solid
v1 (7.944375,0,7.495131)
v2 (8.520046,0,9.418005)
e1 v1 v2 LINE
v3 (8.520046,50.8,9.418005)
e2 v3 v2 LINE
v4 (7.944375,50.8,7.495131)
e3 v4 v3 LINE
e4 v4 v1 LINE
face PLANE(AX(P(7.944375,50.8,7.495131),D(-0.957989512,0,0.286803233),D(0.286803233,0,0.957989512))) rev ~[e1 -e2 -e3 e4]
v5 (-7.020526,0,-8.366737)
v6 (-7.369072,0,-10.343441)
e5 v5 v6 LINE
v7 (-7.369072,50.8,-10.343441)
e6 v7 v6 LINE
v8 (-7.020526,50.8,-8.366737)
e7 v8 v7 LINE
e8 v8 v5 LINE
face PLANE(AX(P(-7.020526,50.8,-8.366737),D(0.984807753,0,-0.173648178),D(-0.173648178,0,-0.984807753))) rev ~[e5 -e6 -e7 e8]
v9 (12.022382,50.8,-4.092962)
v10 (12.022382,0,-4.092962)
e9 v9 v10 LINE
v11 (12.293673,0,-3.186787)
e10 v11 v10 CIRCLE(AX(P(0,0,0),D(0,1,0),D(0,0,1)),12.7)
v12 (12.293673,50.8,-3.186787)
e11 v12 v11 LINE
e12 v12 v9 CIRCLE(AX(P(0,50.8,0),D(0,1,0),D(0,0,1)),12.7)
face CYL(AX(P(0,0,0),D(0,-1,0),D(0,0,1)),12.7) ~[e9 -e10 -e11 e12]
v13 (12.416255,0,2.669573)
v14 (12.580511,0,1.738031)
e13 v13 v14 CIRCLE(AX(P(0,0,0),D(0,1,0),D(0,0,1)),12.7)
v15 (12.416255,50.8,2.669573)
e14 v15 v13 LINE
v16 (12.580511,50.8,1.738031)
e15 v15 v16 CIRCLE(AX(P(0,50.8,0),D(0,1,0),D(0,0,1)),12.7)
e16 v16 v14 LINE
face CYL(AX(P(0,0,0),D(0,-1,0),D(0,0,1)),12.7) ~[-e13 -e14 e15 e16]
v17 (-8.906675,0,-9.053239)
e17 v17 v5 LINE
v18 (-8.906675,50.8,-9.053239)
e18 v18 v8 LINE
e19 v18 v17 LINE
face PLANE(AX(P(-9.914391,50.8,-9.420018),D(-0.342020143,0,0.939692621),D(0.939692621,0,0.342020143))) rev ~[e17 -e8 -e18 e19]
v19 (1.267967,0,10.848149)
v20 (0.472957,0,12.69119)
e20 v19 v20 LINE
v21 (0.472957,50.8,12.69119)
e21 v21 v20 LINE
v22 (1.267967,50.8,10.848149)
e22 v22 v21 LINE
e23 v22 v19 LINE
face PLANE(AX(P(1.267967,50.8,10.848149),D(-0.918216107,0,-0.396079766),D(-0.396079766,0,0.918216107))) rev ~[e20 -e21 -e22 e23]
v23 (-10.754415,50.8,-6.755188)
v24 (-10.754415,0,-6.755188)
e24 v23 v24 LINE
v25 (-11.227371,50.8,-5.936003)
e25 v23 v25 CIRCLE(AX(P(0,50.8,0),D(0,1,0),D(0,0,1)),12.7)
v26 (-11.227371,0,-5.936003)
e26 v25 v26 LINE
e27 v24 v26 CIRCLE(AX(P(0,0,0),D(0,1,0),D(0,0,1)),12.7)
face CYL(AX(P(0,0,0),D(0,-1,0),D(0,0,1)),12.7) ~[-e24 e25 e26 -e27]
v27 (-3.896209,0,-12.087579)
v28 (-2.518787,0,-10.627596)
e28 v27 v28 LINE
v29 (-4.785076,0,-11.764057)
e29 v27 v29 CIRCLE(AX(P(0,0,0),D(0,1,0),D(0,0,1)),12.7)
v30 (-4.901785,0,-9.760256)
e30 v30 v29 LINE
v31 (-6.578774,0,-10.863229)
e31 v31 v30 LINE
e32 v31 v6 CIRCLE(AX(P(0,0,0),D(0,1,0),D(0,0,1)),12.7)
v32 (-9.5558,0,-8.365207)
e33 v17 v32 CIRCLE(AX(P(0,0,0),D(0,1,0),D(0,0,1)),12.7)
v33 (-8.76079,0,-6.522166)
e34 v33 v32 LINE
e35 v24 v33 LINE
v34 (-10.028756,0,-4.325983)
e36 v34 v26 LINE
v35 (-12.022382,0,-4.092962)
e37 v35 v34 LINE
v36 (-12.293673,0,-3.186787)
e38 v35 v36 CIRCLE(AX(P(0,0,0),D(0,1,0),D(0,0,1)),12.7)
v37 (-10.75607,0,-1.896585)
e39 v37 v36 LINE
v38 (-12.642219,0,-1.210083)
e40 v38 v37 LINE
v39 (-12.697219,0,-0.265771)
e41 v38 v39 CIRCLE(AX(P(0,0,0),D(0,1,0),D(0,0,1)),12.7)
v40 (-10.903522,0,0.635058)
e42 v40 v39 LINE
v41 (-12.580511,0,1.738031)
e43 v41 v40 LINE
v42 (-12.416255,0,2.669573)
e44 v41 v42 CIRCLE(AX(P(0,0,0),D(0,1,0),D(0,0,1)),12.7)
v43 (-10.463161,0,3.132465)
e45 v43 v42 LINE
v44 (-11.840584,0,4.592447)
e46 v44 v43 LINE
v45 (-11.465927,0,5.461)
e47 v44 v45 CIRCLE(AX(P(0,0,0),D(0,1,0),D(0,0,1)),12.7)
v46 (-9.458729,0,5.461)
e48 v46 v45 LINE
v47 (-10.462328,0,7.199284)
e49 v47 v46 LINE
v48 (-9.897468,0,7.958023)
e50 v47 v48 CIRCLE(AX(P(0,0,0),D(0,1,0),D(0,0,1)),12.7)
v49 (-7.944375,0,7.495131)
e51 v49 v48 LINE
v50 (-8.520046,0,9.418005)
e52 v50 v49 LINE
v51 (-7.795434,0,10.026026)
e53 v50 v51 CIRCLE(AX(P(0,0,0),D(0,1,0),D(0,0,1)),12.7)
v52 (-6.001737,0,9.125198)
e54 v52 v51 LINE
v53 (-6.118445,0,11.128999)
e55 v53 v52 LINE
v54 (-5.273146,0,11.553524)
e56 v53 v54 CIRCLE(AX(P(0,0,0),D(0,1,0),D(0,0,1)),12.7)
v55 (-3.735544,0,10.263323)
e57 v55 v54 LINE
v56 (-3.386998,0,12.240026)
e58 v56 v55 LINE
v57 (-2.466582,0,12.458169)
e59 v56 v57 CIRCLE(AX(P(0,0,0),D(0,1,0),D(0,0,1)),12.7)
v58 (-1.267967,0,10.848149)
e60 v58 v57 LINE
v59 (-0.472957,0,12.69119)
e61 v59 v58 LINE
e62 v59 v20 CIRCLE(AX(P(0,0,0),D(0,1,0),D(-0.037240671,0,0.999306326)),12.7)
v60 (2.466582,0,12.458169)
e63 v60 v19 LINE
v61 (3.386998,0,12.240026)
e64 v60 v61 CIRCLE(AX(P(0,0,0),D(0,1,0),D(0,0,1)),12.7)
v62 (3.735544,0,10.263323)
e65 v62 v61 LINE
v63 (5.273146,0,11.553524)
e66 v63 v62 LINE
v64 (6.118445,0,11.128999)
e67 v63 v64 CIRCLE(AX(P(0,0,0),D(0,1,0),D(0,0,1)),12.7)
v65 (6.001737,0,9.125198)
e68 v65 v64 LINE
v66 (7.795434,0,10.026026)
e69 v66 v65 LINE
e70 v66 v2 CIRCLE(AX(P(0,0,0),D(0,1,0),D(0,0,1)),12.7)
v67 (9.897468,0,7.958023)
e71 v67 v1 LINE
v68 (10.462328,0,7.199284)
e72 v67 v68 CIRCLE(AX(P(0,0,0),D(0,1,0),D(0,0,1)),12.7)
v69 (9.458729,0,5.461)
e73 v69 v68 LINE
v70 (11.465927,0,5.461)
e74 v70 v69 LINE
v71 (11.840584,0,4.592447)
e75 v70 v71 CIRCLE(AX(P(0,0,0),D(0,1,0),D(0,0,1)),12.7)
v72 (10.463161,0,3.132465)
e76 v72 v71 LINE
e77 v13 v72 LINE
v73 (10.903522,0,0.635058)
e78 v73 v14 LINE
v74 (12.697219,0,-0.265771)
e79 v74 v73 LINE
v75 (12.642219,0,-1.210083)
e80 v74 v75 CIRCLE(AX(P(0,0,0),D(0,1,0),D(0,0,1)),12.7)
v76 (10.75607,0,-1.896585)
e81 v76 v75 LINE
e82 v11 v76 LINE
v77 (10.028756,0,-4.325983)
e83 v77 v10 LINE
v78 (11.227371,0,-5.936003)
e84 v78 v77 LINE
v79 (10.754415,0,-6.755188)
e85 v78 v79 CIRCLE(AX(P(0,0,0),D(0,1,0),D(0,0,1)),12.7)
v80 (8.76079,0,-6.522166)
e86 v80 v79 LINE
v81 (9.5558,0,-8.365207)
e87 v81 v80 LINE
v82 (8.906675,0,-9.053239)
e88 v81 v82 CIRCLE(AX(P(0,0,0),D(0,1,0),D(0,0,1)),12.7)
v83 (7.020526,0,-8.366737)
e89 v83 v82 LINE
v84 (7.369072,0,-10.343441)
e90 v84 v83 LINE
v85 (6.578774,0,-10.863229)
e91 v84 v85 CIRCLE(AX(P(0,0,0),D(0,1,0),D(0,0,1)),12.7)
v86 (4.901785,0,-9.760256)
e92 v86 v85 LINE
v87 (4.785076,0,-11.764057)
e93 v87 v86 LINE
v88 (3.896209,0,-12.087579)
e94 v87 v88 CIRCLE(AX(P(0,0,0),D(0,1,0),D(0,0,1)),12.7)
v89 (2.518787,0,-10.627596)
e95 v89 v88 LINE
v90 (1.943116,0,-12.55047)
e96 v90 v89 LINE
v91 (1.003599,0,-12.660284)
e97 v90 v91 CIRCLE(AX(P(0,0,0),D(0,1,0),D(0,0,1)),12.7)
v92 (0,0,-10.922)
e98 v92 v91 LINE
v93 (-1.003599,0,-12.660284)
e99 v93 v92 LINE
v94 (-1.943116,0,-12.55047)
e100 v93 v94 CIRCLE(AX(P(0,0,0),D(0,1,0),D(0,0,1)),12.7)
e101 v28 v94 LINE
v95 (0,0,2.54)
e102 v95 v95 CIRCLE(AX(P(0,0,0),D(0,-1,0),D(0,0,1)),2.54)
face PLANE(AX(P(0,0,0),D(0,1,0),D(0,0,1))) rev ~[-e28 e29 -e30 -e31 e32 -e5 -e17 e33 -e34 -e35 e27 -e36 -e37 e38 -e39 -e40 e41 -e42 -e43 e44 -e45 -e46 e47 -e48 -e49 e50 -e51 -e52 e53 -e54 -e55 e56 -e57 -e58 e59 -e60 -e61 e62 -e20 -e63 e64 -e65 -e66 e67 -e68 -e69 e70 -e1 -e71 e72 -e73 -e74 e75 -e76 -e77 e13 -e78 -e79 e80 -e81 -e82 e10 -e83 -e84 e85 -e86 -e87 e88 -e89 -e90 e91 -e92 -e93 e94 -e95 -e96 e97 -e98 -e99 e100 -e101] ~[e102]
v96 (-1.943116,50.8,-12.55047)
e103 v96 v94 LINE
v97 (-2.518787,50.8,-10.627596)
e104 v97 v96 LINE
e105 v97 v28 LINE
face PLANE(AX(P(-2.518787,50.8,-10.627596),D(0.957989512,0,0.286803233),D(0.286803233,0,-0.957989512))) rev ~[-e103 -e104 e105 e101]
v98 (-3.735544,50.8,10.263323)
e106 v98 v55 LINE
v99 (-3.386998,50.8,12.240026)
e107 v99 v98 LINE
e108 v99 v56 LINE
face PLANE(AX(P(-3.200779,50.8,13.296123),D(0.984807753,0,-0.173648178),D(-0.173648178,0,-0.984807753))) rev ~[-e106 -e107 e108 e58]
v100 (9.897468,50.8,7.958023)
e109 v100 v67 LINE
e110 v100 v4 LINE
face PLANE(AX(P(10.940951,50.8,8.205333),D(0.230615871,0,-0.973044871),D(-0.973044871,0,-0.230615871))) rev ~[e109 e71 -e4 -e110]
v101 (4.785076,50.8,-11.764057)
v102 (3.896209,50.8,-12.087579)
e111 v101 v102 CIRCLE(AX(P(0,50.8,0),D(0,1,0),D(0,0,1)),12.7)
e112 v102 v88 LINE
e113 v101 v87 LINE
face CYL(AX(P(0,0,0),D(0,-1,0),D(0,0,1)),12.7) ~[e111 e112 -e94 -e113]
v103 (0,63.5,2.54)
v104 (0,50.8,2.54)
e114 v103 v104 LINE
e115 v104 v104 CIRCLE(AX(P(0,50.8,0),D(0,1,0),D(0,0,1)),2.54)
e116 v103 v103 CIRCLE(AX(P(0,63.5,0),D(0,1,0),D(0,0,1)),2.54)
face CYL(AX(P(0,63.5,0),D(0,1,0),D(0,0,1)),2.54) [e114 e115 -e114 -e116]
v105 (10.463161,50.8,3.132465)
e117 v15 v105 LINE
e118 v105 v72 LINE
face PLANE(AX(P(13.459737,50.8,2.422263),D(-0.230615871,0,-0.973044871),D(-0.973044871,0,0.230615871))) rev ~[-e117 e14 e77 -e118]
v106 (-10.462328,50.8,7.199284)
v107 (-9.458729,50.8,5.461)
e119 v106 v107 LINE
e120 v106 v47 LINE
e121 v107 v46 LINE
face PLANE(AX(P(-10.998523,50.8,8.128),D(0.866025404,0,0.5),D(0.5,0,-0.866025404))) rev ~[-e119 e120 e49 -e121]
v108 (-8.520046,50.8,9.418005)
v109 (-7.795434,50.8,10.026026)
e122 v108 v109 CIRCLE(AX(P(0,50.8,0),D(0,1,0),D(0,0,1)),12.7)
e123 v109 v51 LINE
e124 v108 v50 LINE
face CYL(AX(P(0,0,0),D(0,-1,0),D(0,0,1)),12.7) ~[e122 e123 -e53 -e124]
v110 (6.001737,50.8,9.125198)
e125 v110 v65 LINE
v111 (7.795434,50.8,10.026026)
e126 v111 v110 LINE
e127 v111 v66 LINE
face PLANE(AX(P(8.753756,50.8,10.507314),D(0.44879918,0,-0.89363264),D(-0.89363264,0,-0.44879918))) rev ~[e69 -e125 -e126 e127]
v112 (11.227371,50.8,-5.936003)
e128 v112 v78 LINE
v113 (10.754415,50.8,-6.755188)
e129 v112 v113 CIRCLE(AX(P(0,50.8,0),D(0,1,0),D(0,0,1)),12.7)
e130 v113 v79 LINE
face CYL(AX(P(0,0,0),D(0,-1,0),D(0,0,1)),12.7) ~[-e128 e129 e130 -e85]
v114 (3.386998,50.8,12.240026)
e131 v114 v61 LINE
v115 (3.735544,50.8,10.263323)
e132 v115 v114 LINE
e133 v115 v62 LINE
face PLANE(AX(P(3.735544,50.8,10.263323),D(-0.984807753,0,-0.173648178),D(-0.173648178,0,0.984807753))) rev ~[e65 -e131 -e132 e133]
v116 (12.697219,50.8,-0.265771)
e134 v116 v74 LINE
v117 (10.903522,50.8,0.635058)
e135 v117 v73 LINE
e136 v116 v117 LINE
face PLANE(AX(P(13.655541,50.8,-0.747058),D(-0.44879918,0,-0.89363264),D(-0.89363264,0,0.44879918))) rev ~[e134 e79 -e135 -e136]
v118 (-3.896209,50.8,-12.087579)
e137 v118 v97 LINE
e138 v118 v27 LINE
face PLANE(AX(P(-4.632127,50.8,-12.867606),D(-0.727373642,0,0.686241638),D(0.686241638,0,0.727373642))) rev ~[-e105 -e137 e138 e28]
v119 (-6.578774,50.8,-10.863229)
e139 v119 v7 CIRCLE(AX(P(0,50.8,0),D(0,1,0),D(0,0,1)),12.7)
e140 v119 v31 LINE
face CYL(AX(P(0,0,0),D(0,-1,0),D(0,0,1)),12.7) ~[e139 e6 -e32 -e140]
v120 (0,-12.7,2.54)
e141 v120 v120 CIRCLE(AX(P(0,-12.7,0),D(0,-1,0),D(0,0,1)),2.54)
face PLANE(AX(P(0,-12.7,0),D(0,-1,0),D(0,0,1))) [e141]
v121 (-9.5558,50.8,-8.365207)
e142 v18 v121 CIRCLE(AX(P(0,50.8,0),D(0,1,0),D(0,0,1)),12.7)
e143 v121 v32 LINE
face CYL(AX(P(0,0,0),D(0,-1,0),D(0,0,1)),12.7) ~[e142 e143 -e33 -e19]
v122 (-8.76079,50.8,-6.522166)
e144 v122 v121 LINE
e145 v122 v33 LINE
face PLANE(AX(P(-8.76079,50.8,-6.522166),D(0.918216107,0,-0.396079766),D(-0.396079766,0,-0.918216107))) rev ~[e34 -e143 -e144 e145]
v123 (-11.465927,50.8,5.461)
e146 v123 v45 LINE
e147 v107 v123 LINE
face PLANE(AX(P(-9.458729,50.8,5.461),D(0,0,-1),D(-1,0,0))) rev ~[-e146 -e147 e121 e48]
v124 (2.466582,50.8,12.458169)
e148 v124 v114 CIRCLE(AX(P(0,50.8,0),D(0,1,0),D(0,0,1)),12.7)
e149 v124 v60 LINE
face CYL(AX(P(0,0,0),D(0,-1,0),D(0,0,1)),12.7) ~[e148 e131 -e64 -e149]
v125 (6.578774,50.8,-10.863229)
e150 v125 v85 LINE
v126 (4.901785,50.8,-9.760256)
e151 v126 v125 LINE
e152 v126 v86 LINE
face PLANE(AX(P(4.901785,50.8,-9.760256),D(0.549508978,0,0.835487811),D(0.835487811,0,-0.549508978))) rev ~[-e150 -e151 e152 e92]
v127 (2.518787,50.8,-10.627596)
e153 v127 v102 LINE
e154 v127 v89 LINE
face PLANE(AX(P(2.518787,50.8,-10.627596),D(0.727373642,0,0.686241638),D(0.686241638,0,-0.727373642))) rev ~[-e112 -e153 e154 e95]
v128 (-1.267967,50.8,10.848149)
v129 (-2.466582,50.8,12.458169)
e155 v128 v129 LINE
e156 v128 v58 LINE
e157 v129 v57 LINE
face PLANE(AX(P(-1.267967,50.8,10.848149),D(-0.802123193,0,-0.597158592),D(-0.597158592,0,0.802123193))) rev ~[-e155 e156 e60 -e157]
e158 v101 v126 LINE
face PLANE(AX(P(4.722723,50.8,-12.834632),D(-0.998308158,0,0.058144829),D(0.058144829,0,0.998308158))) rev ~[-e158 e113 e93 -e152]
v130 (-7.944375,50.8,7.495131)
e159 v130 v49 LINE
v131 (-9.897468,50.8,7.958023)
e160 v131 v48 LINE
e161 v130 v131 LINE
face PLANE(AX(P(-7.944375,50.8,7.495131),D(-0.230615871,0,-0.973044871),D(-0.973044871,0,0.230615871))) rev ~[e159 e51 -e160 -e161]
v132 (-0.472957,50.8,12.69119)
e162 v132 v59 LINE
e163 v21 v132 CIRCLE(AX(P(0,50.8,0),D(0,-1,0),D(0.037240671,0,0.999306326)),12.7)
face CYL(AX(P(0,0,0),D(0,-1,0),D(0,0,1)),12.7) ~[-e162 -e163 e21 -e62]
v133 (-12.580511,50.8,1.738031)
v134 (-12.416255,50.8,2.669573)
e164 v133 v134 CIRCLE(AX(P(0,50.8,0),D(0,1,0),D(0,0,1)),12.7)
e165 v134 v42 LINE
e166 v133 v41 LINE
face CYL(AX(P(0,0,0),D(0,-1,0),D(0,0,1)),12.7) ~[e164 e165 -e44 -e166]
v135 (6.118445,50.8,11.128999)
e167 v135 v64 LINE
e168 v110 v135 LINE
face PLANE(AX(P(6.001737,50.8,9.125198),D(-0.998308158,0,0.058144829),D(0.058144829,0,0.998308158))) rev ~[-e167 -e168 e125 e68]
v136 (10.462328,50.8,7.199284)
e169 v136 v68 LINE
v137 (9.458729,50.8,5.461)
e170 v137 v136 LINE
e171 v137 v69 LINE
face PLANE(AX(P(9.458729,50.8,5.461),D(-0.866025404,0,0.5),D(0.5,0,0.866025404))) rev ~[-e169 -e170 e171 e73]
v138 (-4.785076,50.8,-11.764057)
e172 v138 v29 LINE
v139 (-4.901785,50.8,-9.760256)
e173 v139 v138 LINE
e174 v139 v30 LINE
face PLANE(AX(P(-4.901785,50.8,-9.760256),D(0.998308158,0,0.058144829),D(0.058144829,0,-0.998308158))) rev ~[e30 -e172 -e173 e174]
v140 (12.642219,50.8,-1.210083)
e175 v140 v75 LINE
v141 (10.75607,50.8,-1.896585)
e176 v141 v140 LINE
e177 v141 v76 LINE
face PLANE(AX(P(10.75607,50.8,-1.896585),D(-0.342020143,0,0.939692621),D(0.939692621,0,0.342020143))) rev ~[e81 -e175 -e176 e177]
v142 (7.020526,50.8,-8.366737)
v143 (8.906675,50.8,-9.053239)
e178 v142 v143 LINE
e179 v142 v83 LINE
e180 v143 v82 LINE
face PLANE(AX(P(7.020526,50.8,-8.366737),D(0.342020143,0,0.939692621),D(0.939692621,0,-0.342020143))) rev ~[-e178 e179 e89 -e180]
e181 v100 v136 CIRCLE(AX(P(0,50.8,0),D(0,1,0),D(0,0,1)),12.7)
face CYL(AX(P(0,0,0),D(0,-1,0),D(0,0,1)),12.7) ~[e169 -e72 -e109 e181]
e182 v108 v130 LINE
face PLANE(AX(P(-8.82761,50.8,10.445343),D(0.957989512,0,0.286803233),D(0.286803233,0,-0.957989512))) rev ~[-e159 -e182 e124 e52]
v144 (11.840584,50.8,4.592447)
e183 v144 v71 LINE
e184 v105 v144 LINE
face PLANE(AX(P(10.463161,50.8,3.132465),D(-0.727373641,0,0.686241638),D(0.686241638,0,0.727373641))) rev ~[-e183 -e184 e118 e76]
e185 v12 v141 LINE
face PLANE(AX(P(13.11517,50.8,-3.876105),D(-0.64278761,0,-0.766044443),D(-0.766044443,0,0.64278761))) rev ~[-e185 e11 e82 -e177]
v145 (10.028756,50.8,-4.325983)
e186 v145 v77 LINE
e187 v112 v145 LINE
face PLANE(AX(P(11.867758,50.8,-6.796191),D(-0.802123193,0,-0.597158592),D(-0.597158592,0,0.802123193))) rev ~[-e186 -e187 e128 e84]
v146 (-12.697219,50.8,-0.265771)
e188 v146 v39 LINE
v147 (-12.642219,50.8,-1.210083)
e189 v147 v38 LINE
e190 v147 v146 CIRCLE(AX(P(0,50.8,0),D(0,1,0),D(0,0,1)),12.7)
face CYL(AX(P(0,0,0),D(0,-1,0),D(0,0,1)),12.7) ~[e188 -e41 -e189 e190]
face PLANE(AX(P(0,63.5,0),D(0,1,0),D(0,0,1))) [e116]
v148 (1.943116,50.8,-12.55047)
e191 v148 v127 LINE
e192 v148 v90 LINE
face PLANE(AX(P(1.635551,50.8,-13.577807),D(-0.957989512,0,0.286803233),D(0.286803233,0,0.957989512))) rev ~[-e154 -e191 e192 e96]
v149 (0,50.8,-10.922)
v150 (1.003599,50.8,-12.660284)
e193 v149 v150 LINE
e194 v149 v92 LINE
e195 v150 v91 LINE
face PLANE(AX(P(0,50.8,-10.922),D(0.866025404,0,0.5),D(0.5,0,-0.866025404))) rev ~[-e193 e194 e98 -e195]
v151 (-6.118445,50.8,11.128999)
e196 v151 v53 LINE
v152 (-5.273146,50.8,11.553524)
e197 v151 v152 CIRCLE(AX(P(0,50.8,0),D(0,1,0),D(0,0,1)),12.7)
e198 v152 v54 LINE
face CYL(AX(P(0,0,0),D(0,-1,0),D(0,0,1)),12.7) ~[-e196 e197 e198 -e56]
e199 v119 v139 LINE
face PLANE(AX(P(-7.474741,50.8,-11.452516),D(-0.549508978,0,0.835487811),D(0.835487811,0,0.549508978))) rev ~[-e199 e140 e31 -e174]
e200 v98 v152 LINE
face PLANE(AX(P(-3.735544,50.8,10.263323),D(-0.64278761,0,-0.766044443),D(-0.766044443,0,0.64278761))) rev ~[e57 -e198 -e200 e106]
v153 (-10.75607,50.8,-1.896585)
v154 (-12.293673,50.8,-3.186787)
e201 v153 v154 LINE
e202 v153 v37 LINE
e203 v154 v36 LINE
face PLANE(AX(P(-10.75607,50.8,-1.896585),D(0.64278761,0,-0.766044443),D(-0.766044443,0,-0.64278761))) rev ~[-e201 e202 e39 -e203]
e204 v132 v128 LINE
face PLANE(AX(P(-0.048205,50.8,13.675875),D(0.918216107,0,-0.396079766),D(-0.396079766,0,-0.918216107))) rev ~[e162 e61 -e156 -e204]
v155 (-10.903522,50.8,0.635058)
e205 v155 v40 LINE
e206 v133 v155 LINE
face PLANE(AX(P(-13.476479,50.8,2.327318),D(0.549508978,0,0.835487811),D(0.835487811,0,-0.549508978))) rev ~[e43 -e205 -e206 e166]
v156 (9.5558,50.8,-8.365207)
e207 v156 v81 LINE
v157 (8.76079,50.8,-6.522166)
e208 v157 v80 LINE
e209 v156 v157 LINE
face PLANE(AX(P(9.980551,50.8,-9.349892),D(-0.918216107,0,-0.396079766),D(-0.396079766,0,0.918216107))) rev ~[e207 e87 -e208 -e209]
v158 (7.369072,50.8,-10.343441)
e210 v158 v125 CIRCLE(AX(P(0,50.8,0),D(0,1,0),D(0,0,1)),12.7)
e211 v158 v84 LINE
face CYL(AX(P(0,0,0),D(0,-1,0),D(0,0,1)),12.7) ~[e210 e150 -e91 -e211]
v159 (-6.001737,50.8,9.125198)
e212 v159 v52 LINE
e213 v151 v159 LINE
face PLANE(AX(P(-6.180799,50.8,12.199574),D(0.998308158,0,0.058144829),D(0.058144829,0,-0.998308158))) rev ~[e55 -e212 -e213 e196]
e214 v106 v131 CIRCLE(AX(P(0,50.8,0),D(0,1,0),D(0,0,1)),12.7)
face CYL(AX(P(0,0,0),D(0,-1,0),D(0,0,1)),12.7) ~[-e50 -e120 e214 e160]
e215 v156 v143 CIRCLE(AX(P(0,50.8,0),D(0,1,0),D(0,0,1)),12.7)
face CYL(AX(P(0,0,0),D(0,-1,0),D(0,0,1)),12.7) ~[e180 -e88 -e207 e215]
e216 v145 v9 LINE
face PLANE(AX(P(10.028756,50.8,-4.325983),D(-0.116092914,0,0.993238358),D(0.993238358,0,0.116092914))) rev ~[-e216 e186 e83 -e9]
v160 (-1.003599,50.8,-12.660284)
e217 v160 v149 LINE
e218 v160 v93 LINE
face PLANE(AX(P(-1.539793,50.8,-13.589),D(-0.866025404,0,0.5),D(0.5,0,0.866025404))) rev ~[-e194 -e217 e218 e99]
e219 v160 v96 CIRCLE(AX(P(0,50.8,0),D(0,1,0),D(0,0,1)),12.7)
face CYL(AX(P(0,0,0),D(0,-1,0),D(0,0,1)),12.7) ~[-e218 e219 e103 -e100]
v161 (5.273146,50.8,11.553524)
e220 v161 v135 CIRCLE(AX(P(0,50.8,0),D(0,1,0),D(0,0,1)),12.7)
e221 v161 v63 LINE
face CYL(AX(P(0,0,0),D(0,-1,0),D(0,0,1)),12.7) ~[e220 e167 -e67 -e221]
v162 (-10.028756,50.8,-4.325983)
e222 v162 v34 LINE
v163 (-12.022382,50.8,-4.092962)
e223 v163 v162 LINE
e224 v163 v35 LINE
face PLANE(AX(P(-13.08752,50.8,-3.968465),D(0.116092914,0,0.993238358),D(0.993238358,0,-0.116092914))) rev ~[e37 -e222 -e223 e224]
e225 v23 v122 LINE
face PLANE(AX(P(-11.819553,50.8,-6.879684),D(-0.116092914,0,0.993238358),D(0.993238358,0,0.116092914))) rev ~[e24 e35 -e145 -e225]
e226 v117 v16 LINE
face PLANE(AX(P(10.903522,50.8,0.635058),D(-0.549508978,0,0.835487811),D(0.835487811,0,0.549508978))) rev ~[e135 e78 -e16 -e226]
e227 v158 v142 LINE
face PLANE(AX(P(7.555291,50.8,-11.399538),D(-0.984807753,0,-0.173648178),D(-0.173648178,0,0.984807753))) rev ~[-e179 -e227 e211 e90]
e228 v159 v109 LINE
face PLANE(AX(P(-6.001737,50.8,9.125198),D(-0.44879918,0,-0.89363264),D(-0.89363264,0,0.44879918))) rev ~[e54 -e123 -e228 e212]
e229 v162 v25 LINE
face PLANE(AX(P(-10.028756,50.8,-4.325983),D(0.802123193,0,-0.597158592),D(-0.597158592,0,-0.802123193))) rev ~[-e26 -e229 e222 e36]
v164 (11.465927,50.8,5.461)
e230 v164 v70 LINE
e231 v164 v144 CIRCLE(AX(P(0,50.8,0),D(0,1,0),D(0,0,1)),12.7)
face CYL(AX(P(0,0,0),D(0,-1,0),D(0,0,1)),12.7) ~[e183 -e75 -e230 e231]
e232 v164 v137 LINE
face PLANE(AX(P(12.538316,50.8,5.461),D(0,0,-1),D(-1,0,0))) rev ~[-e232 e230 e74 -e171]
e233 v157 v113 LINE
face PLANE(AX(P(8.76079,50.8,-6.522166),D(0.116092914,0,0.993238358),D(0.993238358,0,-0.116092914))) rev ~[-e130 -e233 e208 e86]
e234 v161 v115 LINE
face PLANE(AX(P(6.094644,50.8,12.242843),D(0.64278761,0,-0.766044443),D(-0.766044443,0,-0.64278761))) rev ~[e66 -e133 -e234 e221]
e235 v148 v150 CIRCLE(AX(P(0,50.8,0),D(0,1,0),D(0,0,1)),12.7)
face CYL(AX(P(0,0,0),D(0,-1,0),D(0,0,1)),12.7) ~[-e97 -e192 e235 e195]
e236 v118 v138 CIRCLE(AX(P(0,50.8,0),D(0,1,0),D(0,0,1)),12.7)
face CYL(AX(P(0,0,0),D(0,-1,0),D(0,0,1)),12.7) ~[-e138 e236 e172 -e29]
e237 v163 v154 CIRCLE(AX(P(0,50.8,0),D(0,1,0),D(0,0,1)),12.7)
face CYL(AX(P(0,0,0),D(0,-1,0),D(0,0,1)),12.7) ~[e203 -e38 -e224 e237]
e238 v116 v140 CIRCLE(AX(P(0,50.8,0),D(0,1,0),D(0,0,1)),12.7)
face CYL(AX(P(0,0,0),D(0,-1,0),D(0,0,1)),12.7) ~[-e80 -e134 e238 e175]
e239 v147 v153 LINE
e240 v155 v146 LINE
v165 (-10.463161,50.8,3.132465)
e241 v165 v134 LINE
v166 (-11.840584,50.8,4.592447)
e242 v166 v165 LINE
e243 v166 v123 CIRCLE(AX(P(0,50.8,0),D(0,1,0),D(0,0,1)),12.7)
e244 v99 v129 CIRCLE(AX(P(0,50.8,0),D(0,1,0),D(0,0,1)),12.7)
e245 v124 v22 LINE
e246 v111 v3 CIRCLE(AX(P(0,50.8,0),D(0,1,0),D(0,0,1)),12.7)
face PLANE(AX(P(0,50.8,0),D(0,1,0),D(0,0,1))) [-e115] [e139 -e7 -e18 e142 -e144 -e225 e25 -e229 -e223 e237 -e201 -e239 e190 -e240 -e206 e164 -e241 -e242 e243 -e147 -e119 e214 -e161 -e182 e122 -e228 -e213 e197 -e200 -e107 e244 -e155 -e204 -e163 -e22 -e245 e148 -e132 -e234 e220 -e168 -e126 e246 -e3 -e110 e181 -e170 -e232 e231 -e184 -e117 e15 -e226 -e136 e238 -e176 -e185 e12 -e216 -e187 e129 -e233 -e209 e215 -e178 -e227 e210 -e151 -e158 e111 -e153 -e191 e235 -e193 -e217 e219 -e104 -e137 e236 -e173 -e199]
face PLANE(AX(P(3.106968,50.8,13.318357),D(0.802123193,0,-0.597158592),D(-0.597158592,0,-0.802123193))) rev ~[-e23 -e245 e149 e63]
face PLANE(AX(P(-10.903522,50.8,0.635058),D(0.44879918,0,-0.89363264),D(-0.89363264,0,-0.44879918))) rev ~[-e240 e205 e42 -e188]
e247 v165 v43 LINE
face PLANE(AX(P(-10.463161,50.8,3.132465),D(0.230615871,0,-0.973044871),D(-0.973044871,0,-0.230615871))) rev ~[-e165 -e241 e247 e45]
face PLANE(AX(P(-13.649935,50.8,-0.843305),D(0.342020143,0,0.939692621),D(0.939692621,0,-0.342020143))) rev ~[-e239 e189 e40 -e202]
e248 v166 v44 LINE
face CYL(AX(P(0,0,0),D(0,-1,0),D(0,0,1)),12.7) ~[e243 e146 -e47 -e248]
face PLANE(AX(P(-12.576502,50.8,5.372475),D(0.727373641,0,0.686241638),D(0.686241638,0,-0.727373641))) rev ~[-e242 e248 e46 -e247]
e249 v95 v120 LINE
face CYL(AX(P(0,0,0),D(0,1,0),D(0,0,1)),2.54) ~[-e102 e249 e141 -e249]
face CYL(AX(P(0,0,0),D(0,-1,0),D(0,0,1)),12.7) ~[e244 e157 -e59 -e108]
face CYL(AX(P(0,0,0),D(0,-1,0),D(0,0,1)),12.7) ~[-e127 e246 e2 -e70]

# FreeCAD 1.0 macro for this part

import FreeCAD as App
import Part
import Sketcher
from FreeCAD import Vector
Q = App.Units.Quantity

doc = App.newDocument("Part")
body = doc.addObject("PartDesign::Body", "Body")

# Sketch on XZ plane
sketch1 = body.newObject("Sketcher::SketchObject", "Sketch")
sketch1.AttachmentSupport = (doc.getObject("XZ_Plane"), [""])
sketch1.MapMode = "FlatFace"
sketch1.addGeometry(Part.Circle(Vector(0, 0, 0), Vector(0, 0, 1), 13), False)
sketch1.addConstraint(Sketcher.Constraint("Coincident", 0, 3, -1, 1))
sketch1.addConstraint(Sketcher.Constraint("Diameter", 0, Q("1 in")))
pad1 = body.newObject("PartDesign::Pad", "Pad")
pad1.Profile = sketch1
pad1.Length = Q("2 in")
pad1.Reversed = True

# Sketch on XZ plane
sketch2 = body.newObject("Sketcher::SketchObject", "Sketch001")
sketch2.AttachmentSupport = (doc.getObject("XZ_Plane"), [""])
sketch2.MapMode = "FlatFace"
sketch2.AttachmentOffset = App.Placement(Vector(0, 0, -2 * 25.4), App.Rotation())
sketch2.addGeometry(Part.LineSegment(Vector(2.518787, -10.627596, 0), Vector(4.632127, -12.867606, 0)), False)
sketch2.addGeometry(Part.LineSegment(Vector(4.632127, -12.867606, 0), Vector(1.635551, -13.577807, 0)), False)
sketch2.addGeometry(Part.LineSegment(Vector(1.635551, -13.577807, 0), Vector(2.518787, -10.627596, 0)), False)
sketch2.addGeometry(Part.LineSegment(Vector(0, -10.922, 0), Vector(1.539793, -13.589, 0)), False)
sketch2.addGeometry(Part.LineSegment(Vector(1.539793, -13.589, 0), Vector(-1.539793, -13.589, 0)), False)
sketch2.addGeometry(Part.LineSegment(Vector(-1.539793, -13.589, 0), Vector(0, -10.922, 0)), False)
sketch2.addGeometry(Part.LineSegment(Vector(4.901785, -9.760256, 0), Vector(7.474741, -11.452516, 0)), False)
sketch2.addGeometry(Part.LineSegment(Vector(7.474741, -11.452516, 0), Vector(4.722723, -12.834632, 0)), False)
sketch2.addGeometry(Part.LineSegment(Vector(4.722723, -12.834632, 0), Vector(4.901785, -9.760256, 0)), False)
sketch2.addGeometry(Part.LineSegment(Vector(7.020526, -8.366737, 0), Vector(9.914391, -9.420018, 0)), False)
sketch2.addGeometry(Part.LineSegment(Vector(9.914391, -9.420018, 0), Vector(7.555291, -11.399538, 0)), False)
sketch2.addGeometry(Part.LineSegment(Vector(7.555291, -11.399538, 0), Vector(7.020526, -8.366737, 0)), False)
sketch2.addGeometry(Part.LineSegment(Vector(8.76079, -6.522166, 0), Vector(11.819553, -6.879684, 0)), False)
sketch2.addGeometry(Part.LineSegment(Vector(11.819553, -6.879684, 0), Vector(9.980551, -9.349892, 0)), False)
sketch2.addGeometry(Part.LineSegment(Vector(9.980551, -9.349892, 0), Vector(8.76079, -6.522166, 0)), False)
sketch2.addGeometry(Part.LineSegment(Vector(10.028756, -4.325983, 0), Vector(13.08752, -3.968465, 0)), False)
sketch2.addGeometry(Part.LineSegment(Vector(13.08752, -3.968465, 0), Vector(11.867758, -6.796191, 0)), False)
sketch2.addGeometry(Part.LineSegment(Vector(11.867758, -6.796191, 0), Vector(10.028756, -4.325983, 0)), False)
sketch2.addGeometry(Part.LineSegment(Vector(10.75607, -1.896585, 0), Vector(13.649935, -0.843305, 0)), False)
sketch2.addGeometry(Part.LineSegment(Vector(13.649935, -0.843305, 0), Vector(13.11517, -3.876105, 0)), False)
sketch2.addGeometry(Part.LineSegment(Vector(13.11517, -3.876105, 0), Vector(10.75607, -1.896585, 0)), False)
sketch2.addGeometry(Part.LineSegment(Vector(10.903522, 0.635058, 0), Vector(13.476479, 2.327318, 0)), False)
sketch2.addGeometry(Part.LineSegment(Vector(13.476479, 2.327318, 0), Vector(13.655541, -0.747058, 0)), False)
sketch2.addGeometry(Part.LineSegment(Vector(13.655541, -0.747058, 0), Vector(10.903522, 0.635058, 0)), False)
sketch2.addGeometry(Part.LineSegment(Vector(10.463161, 3.132465, 0), Vector(12.576502, 5.372475, 0)), False)
sketch2.addGeometry(Part.LineSegment(Vector(12.576502, 5.372475, 0), Vector(13.459737, 2.422263, 0)), False)
sketch2.addGeometry(Part.LineSegment(Vector(13.459737, 2.422263, 0), Vector(10.463161, 3.132465, 0)), False)
sketch2.addGeometry(Part.LineSegment(Vector(9.458729, 5.461, 0), Vector(10.998523, 8.128, 0)), False)
sketch2.addGeometry(Part.LineSegment(Vector(10.998523, 8.128, 0), Vector(12.538316, 5.461, 0)), False)
sketch2.addGeometry(Part.LineSegment(Vector(12.538316, 5.461, 0), Vector(9.458729, 5.461, 0)), False)
sketch2.addGeometry(Part.LineSegment(Vector(7.944375, 7.495131, 0), Vector(8.82761, 10.445343, 0)), False)
sketch2.addGeometry(Part.LineSegment(Vector(8.82761, 10.445343, 0), Vector(10.940951, 8.205333, 0)), False)
sketch2.addGeometry(Part.LineSegment(Vector(10.940951, 8.205333, 0), Vector(7.944375, 7.495131, 0)), False)
sketch2.addGeometry(Part.LineSegment(Vector(6.001737, 9.125198, 0), Vector(6.180799, 12.199574, 0)), False)
sketch2.addGeometry(Part.LineSegment(Vector(6.180799, 12.199574, 0), Vector(8.753756, 10.507314, 0)), False)
sketch2.addGeometry(Part.LineSegment(Vector(8.753756, 10.507314, 0), Vector(6.001737, 9.125198, 0)), False)
sketch2.addGeometry(Part.LineSegment(Vector(3.735544, 10.263323, 0), Vector(3.200779, 13.296123, 0)), False)
sketch2.addGeometry(Part.LineSegment(Vector(3.200779, 13.296123, 0), Vector(6.094644, 12.242843, 0)), False)
sketch2.addGeometry(Part.LineSegment(Vector(6.094644, 12.242843, 0), Vector(3.735544, 10.263323, 0)), False)
sketch2.addGeometry(Part.LineSegment(Vector(1.267967, 10.848149, 0), Vector(0.048205, 13.675875, 0)), False)
sketch2.addGeometry(Part.LineSegment(Vector(0.048205, 13.675875, 0), Vector(3.106968, 13.318357, 0)), False)
sketch2.addGeometry(Part.LineSegment(Vector(3.106968, 13.318357, 0), Vector(1.267967, 10.848149, 0)), False)
sketch2.addGeometry(Part.LineSegment(Vector(-1.267967, 10.848149, 0), Vector(-3.106968, 13.318357, 0)), False)
sketch2.addGeometry(Part.LineSegment(Vector(-3.106968, 13.318357, 0), Vector(-0.048205, 13.675875, 0)), False)
sketch2.addGeometry(Part.LineSegment(Vector(-0.048205, 13.675875, 0), Vector(-1.267967, 10.848149, 0)), False)
sketch2.addGeometry(Part.LineSegment(Vector(-3.735544, 10.263323, 0), Vector(-6.094644, 12.242843, 0)), False)
sketch2.addGeometry(Part.LineSegment(Vector(-6.094644, 12.242843, 0), Vector(-3.200779, 13.296123, 0)), False)
sketch2.addGeometry(Part.LineSegment(Vector(-3.200779, 13.296123, 0), Vector(-3.735544, 10.263323, 0)), False)
sketch2.addGeometry(Part.LineSegment(Vector(-6.001737, 9.125198, 0), Vector(-8.753756, 10.507314, 0)), False)
sketch2.addGeometry(Part.LineSegment(Vector(-8.753756, 10.507314, 0), Vector(-6.180799, 12.199574, 0)), False)
sketch2.addGeometry(Part.LineSegment(Vector(-6.180799, 12.199574, 0), Vector(-6.001737, 9.125198, 0)), False)
sketch2.addGeometry(Part.LineSegment(Vector(-7.944375, 7.495131, 0), Vector(-10.940951, 8.205333, 0)), False)
sketch2.addGeometry(Part.LineSegment(Vector(-10.940951, 8.205333, 0), Vector(-8.82761, 10.445343, 0)), False)
sketch2.addGeometry(Part.LineSegment(Vector(-8.82761, 10.445343, 0), Vector(-7.944375, 7.495131, 0)), False)
sketch2.addGeometry(Part.LineSegment(Vector(-9.458729, 5.461, 0), Vector(-12.538316, 5.461, 0)), False)
sketch2.addGeometry(Part.LineSegment(Vector(-12.538316, 5.461, 0), Vector(-10.998523, 8.128, 0)), False)
sketch2.addGeometry(Part.LineSegment(Vector(-10.998523, 8.128, 0), Vector(-9.458729, 5.461, 0)), False)
sketch2.addGeometry(Part.LineSegment(Vector(-10.463161, 3.132465, 0), Vector(-13.459737, 2.422263, 0)), False)
sketch2.addGeometry(Part.LineSegment(Vector(-13.459737, 2.422263, 0), Vector(-12.576502, 5.372475, 0)), False)
sketch2.addGeometry(Part.LineSegment(Vector(-12.576502, 5.372475, 0), Vector(-10.463161, 3.132465, 0)), False)
sketch2.addGeometry(Part.LineSegment(Vector(-10.903522, 0.635058, 0), Vector(-13.655541, -0.747058, 0)), False)
sketch2.addGeometry(Part.LineSegment(Vector(-13.655541, -0.747058, 0), Vector(-13.476479, 2.327318, 0)), False)
sketch2.addGeometry(Part.LineSegment(Vector(-13.476479, 2.327318, 0), Vector(-10.903522, 0.635058, 0)), False)
sketch2.addGeometry(Part.LineSegment(Vector(-10.75607, -1.896585, 0), Vector(-13.11517, -3.876105, 0)), False)
sketch2.addGeometry(Part.LineSegment(Vector(-13.11517, -3.876105, 0), Vector(-13.649935, -0.843305, 0)), False)
sketch2.addGeometry(Part.LineSegment(Vector(-13.649935, -0.843305, 0), Vector(-10.75607, -1.896585, 0)), False)
sketch2.addGeometry(Part.LineSegment(Vector(-10.028756, -4.325983, 0), Vector(-11.867758, -6.796191, 0)), False)
sketch2.addGeometry(Part.LineSegment(Vector(-11.867758, -6.796191, 0), Vector(-13.08752, -3.968465, 0)), False)
sketch2.addGeometry(Part.LineSegment(Vector(-13.08752, -3.968465, 0), Vector(-10.028756, -4.325983, 0)), False)
sketch2.addGeometry(Part.LineSegment(Vector(-8.76079, -6.522166, 0), Vector(-9.980551, -9.349892, 0)), False)
sketch2.addGeometry(Part.LineSegment(Vector(-9.980551, -9.349892, 0), Vector(-11.819553, -6.879684, 0)), False)
sketch2.addGeometry(Part.LineSegment(Vector(-11.819553, -6.879684, 0), Vector(-8.76079, -6.522166, 0)), False)
sketch2.addGeometry(Part.LineSegment(Vector(-7.020526, -8.366737, 0), Vector(-7.555291, -11.399538, 0)), False)
sketch2.addGeometry(Part.LineSegment(Vector(-7.555291, -11.399538, 0), Vector(-9.914391, -9.420018, 0)), False)
sketch2.addGeometry(Part.LineSegment(Vector(-9.914391, -9.420018, 0), Vector(-7.020526, -8.366737, 0)), False)
sketch2.addGeometry(Part.LineSegment(Vector(-4.901785, -9.760256, 0), Vector(-4.722723, -12.834632, 0)), False)
sketch2.addGeometry(Part.LineSegment(Vector(-4.722723, -12.834632, 0), Vector(-7.474741, -11.452516, 0)), False)
sketch2.addGeometry(Part.LineSegment(Vector(-7.474741, -11.452516, 0), Vector(-4.901785, -9.760256, 0)), False)
sketch2.addGeometry(Part.LineSegment(Vector(-2.518787, -10.627596, 0), Vector(-1.635551, -13.577807, 0)), False)
sketch2.addGeometry(Part.LineSegment(Vector(-1.635551, -13.577807, 0), Vector(-4.632127, -12.867606, 0)), False)
sketch2.addGeometry(Part.LineSegment(Vector(-4.632127, -12.867606, 0), Vector(-2.518787, -10.627596, 0)), False)
sketch2.addConstraint(Sketcher.Constraint("Coincident", 0, 2, 1, 1))
sketch2.addConstraint(Sketcher.Constraint("Coincident", 1, 2, 2, 1))
sketch2.addConstraint(Sketcher.Constraint("Coincident", 2, 2, 0, 1))
sketch2.addConstraint(Sketcher.Constraint("Coincident", 3, 2, 4, 1))
sketch2.addConstraint(Sketcher.Constraint("Coincident", 4, 2, 5, 1))
sketch2.addConstraint(Sketcher.Constraint("Coincident", 5, 2, 3, 1))
sketch2.addConstraint(Sketcher.Constraint("Coincident", 6, 2, 7, 1))
sketch2.addConstraint(Sketcher.Constraint("Coincident", 7, 2, 8, 1))
sketch2.addConstraint(Sketcher.Constraint("Coincident", 8, 2, 6, 1))
sketch2.addConstraint(Sketcher.Constraint("Coincident", 9, 2, 10, 1))
sketch2.addConstraint(Sketcher.Constraint("Coincident", 10, 2, 11, 1))
sketch2.addConstraint(Sketcher.Constraint("Coincident", 11, 2, 9, 1))
sketch2.addConstraint(Sketcher.Constraint("Coincident", 12, 2, 13, 1))
sketch2.addConstraint(Sketcher.Constraint("Coincident", 13, 2, 14, 1))
sketch2.addConstraint(Sketcher.Constraint("Coincident", 14, 2, 12, 1))
sketch2.addConstraint(Sketcher.Constraint("Coincident", 15, 2, 16, 1))
sketch2.addConstraint(Sketcher.Constraint("Coincident", 16, 2, 17, 1))
sketch2.addConstraint(Sketcher.Constraint("Coincident", 17, 2, 15, 1))
sketch2.addConstraint(Sketcher.Constraint("Coincident", 18, 2, 19, 1))
sketch2.addConstraint(Sketcher.Constraint("Coincident", 19, 2, 20, 1))
sketch2.addConstraint(Sketcher.Constraint("Coincident", 20, 2, 18, 1))
sketch2.addConstraint(Sketcher.Constraint("Coincident", 21, 2, 22, 1))
sketch2.addConstraint(Sketcher.Constraint("Coincident", 22, 2, 23, 1))
sketch2.addConstraint(Sketcher.Constraint("Coincident", 23, 2, 21, 1))
sketch2.addConstraint(Sketcher.Constraint("Coincident", 24, 2, 25, 1))
sketch2.addConstraint(Sketcher.Constraint("Coincident", 25, 2, 26, 1))
sketch2.addConstraint(Sketcher.Constraint("Coincident", 26, 2, 24, 1))
sketch2.addConstraint(Sketcher.Constraint("Coincident", 27, 2, 28, 1))
sketch2.addConstraint(Sketcher.Constraint("Coincident", 28, 2, 29, 1))
sketch2.addConstraint(Sketcher.Constraint("Coincident", 29, 2, 27, 1))
sketch2.addConstraint(Sketcher.Constraint("Coincident", 30, 2, 31, 1))
sketch2.addConstraint(Sketcher.Constraint("Coincident", 31, 2, 32, 1))
sketch2.addConstraint(Sketcher.Constraint("Coincident", 32, 2, 30, 1))
sketch2.addConstraint(Sketcher.Constraint("Coincident", 33, 2, 34, 1))
sketch2.addConstraint(Sketcher.Constraint("Coincident", 34, 2, 35, 1))
sketch2.addConstraint(Sketcher.Constraint("Coincident", 35, 2, 33, 1))
sketch2.addConstraint(Sketcher.Constraint("Coincident", 36, 2, 37, 1))
sketch2.addConstraint(Sketcher.Constraint("Coincident", 37, 2, 38, 1))
sketch2.addConstraint(Sketcher.Constraint("Coincident", 38, 2, 36, 1))
sketch2.addConstraint(Sketcher.Constraint("Coincident", 39, 2, 40, 1))
sketch2.addConstraint(Sketcher.Constraint("Coincident", 40, 2, 41, 1))
sketch2.addConstraint(Sketcher.Constraint("Coincident", 41, 2, 39, 1))
sketch2.addConstraint(Sketcher.Constraint("Coincident", 42, 2, 43, 1))
sketch2.addConstraint(Sketcher.Constraint("Coincident", 43, 2, 44, 1))
sketch2.addConstraint(Sketcher.Constraint("Coincident", 44, 2, 42, 1))
sketch2.addConstraint(Sketcher.Constraint("Coincident", 45, 2, 46, 1))
sketch2.addConstraint(Sketcher.Constraint("Coincident", 46, 2, 47, 1))
sketch2.addConstraint(Sketcher.Constraint("Coincident", 47, 2, 45, 1))
sketch2.addConstraint(Sketcher.Constraint("Coincident", 48, 2, 49, 1))
sketch2.addConstraint(Sketcher.Constraint("Coincident", 49, 2, 50, 1))
sketch2.addConstraint(Sketcher.Constraint("Coincident", 50, 2, 48, 1))
sketch2.addConstraint(Sketcher.Constraint("Coincident", 51, 2, 52, 1))
sketch2.addConstraint(Sketcher.Constraint("Coincident", 52, 2, 53, 1))
sketch2.addConstraint(Sketcher.Constraint("Coincident", 53, 2, 51, 1))
sketch2.addConstraint(Sketcher.Constraint("Coincident", 54, 2, 55, 1))
sketch2.addConstraint(Sketcher.Constraint("Coincident", 55, 2, 56, 1))
sketch2.addConstraint(Sketcher.Constraint("Coincident", 56, 2, 54, 1))
sketch2.addConstraint(Sketcher.Constraint("Coincident", 57, 2, 58, 1))
sketch2.addConstraint(Sketcher.Constraint("Coincident", 58, 2, 59, 1))
sketch2.addConstraint(Sketcher.Constraint("Coincident", 59, 2, 57, 1))
sketch2.addConstraint(Sketcher.Constraint("Coincident", 60, 2, 61, 1))
sketch2.addConstraint(Sketcher.Constraint("Coincident", 61, 2, 62, 1))
sketch2.addConstraint(Sketcher.Constraint("Coincident", 62, 2, 60, 1))
sketch2.addConstraint(Sketcher.Constraint("Coincident", 63, 2, 64, 1))
sketch2.addConstraint(Sketcher.Constraint("Coincident", 64, 2, 65, 1))
sketch2.addConstraint(Sketcher.Constraint("Coincident", 65, 2, 63, 1))
sketch2.addConstraint(Sketcher.Constraint("Coincident", 66, 2, 67, 1))
sketch2.addConstraint(Sketcher.Constraint("Coincident", 67, 2, 68, 1))
sketch2.addConstraint(Sketcher.Constraint("Coincident", 68, 2, 66, 1))
sketch2.addConstraint(Sketcher.Constraint("Coincident", 69, 2, 70, 1))
sketch2.addConstraint(Sketcher.Constraint("Coincident", 70, 2, 71, 1))
sketch2.addConstraint(Sketcher.Constraint("Coincident", 71, 2, 69, 1))
sketch2.addConstraint(Sketcher.Constraint("Coincident", 72, 2, 73, 1))
sketch2.addConstraint(Sketcher.Constraint("Coincident", 73, 2, 74, 1))
sketch2.addConstraint(Sketcher.Constraint("Coincident", 74, 2, 72, 1))
sketch2.addConstraint(Sketcher.Constraint("Coincident", 75, 2, 76, 1))
sketch2.addConstraint(Sketcher.Constraint("Coincident", 76, 2, 77, 1))
sketch2.addConstraint(Sketcher.Constraint("Coincident", 77, 2, 75, 1))
sketch2.addConstraint(Sketcher.Constraint("Coincident", 78, 2, 79, 1))
sketch2.addConstraint(Sketcher.Constraint("Coincident", 79, 2, 80, 1))
sketch2.addConstraint(Sketcher.Constraint("Coincident", 80, 2, 78, 1))
sketch2.addConstraint(Sketcher.Constraint("Horizontal", 4))
sketch2.addConstraint(Sketcher.Constraint("Horizontal", 29))
sketch2.addConstraint(Sketcher.Constraint("Horizontal", 54))
sketch2.addConstraint(Sketcher.Constraint("Symmetric", 40, 2, 42, 2, -2))
sketch2.addConstraint(Sketcher.Constraint("Symmetric", 39, 2, 43, 2, -2))
sketch2.addConstraint(Sketcher.Constraint("Symmetric", 41, 2, 44, 2, -2))
sketch2.addConstraint(Sketcher.Constraint("Symmetric", 37, 2, 45, 2, -2))
sketch2.addConstraint(Sketcher.Constraint("Symmetric", 36, 2, 46, 2, -2))
sketch2.addConstraint(Sketcher.Constraint("Symmetric", 38, 2, 47, 2, -2))
sketch2.addConstraint(Sketcher.Constraint("Symmetric", 34, 2, 48, 2, -2))
sketch2.addConstraint(Sketcher.Constraint("Symmetric", 33, 2, 49, 2, -2))
sketch2.addConstraint(Sketcher.Constraint("Symmetric", 35, 2, 50, 2, -2))
sketch2.addConstraint(Sketcher.Constraint("Symmetric", 31, 2, 51, 2, -2))
sketch2.addConstraint(Sketcher.Constraint("Symmetric", 30, 2, 52, 2, -2))
sketch2.addConstraint(Sketcher.Constraint("Symmetric", 32, 2, 53, 2, -2))
sketch2.addConstraint(Sketcher.Constraint("Symmetric", 28, 2, 54, 2, -2))
sketch2.addConstraint(Sketcher.Constraint("Symmetric", 27, 2, 55, 2, -2))
sketch2.addConstraint(Sketcher.Constraint("Symmetric", 25, 2, 57, 2, -2))
sketch2.addConstraint(Sketcher.Constraint("Symmetric", 24, 2, 58, 2, -2))
sketch2.addConstraint(Sketcher.Constraint("Symmetric", 26, 2, 59, 2, -2))
sketch2.addConstraint(Sketcher.Constraint("Symmetric", 22, 2, 60, 2, -2))
sketch2.addConstraint(Sketcher.Constraint("Symmetric", 21, 2, 61, 2, -2))
sketch2.addConstraint(Sketcher.Constraint("Symmetric", 23, 2, 62, 2, -2))
sketch2.addConstraint(Sketcher.Constraint("Symmetric", 19, 2, 63, 2, -2))
sketch2.addConstraint(Sketcher.Constraint("Symmetric", 18, 2, 64, 2, -2))
sketch2.addConstraint(Sketcher.Constraint("Symmetric", 20, 2, 65, 2, -2))
sketch2.addConstraint(Sketcher.Constraint("Symmetric", 16, 2, 66, 2, -2))
sketch2.addConstraint(Sketcher.Constraint("Symmetric", 15, 2, 67, 2, -2))
sketch2.addConstraint(Sketcher.Constraint("Symmetric", 17, 2, 68, 2, -2))
sketch2.addConstraint(Sketcher.Constraint("Symmetric", 13, 2, 69, 2, -2))
sketch2.addConstraint(Sketcher.Constraint("Symmetric", 12, 2, 70, 2, -2))
sketch2.addConstraint(Sketcher.Constraint("Symmetric", 14, 2, 71, 2, -2))
sketch2.addConstraint(Sketcher.Constraint("Symmetric", 10, 2, 72, 2, -2))
sketch2.addConstraint(Sketcher.Constraint("Symmetric", 9, 2, 73, 2, -2))
sketch2.addConstraint(Sketcher.Constraint("Symmetric", 11, 2, 74, 2, -2))
sketch2.addConstraint(Sketcher.Constraint("Symmetric", 7, 2, 75, 2, -2))
sketch2.addConstraint(Sketcher.Constraint("Symmetric", 6, 2, 76, 2, -2))
sketch2.addConstraint(Sketcher.Constraint("Symmetric", 8, 2, 77, 2, -2))
sketch2.addConstraint(Sketcher.Constraint("Symmetric", 1, 2, 78, 2, -2))
sketch2.addConstraint(Sketcher.Constraint("Symmetric", 0, 2, 79, 2, -2))
sketch2.addConstraint(Sketcher.Constraint("Symmetric", 2, 2, 80, 2, -2))
sketch2.addConstraint(Sketcher.Constraint("PointOnObject", 5, 2, -2))
sketch2.addConstraint(Sketcher.Constraint("Parallel", 5, 27))
sketch2.addConstraint(Sketcher.Constraint("Parallel", 3, 28))
sketch2.addConstraint(Sketcher.Constraint("Parallel", 2, 30))
sketch2.addConstraint(Sketcher.Constraint("Parallel", 0, 31))
sketch2.addConstraint(Sketcher.Constraint("Parallel", 1, 32))
sketch2.addConstraint(Sketcher.Constraint("Parallel", 8, 33))
sketch2.addConstraint(Sketcher.Constraint("Parallel", 6, 34))
sketch2.addConstraint(Sketcher.Constraint("Parallel", 7, 35))
sketch2.addConstraint(Sketcher.Constraint("Parallel", 11, 36))
sketch2.addConstraint(Sketcher.Constraint("Parallel", 9, 37))
sketch2.addConstraint(Sketcher.Constraint("Parallel", 10, 38))
sketch2.addConstraint(Sketcher.Constraint("Parallel", 14, 39))
sketch2.addConstraint(Sketcher.Constraint("Parallel", 12, 40))
sketch2.addConstraint(Sketcher.Constraint("Parallel", 13, 41))
sketch2.addConstraint(Sketcher.Constraint("Parallel", 17, 42))
sketch2.addConstraint(Sketcher.Constraint("Parallel", 15, 43))
sketch2.addConstraint(Sketcher.Constraint("Parallel", 16, 44))
sketch2.addConstraint(Sketcher.Constraint("Parallel", 20, 45))
sketch2.addConstraint(Sketcher.Constraint("Parallel", 18, 46))
sketch2.addConstraint(Sketcher.Constraint("Parallel", 19, 47))
sketch2.addConstraint(Sketcher.Constraint("Parallel", 23, 48))
sketch2.addConstraint(Sketcher.Constraint("Parallel", 21, 49))
sketch2.addConstraint(Sketcher.Constraint("Parallel", 22, 50))
sketch2.addConstraint(Sketcher.Constraint("Parallel", 26, 51))
sketch2.addConstraint(Sketcher.Constraint("Parallel", 24, 52))
sketch2.addConstraint(Sketcher.Constraint("Parallel", 25, 53))
sketch2.addConstraint(Sketcher.Constraint("Parallel", 27, 55))
sketch2.addConstraint(Sketcher.Constraint("Parallel", 28, 56))
sketch2.addConstraint(Sketcher.Constraint("Equal", 4, 29))
sketch2.addConstraint(Sketcher.Constraint("Equal", 0, 1))
sketch2.addConstraint(Sketcher.Constraint("Equal", 1, 2))
sketch2.addConstraint(Sketcher.Constraint("Equal", 2, 3))
sketch2.addConstraint(Sketcher.Constraint("Equal", 5, 6))
sketch2.addConstraint(Sketcher.Constraint("Equal", 6, 7))
sketch2.addConstraint(Sketcher.Constraint("Equal", 7, 8))
sketch2.addConstraint(Sketcher.Constraint("Equal", 8, 9))
sketch2.addConstraint(Sketcher.Constraint("Equal", 9, 10))
sketch2.addConstraint(Sketcher.Constraint("Equal", 10, 11))
sketch2.addConstraint(Sketcher.Constraint("Equal", 11, 12))
sketch2.addConstraint(Sketcher.Constraint("Equal", 12, 13))
sketch2.addConstraint(Sketcher.Constraint("Equal", 13, 14))
sketch2.addConstraint(Sketcher.Constraint("Equal", 14, 15))
sketch2.addConstraint(Sketcher.Constraint("Equal", 17, 18))
sketch2.addConstraint(Sketcher.Constraint("Equal", 20, 21))
sketch2.addConstraint(Sketcher.Constraint("Equal", 23, 24))
sketch2.addConstraint(Sketcher.Constraint("Equal", 28, 30))
sketch2.addConstraint(Sketcher.Constraint("Equal", 32, 33))
sketch2.addConstraint(Sketcher.Constraint("Equal", 35, 36))
sketch2.addConstraint(Sketcher.Constraint("Equal", 38, 39))
sketch2.addConstraint(Sketcher.Constraint("Angle", 3, Q("-60 deg")))
sketch2.addConstraint(Sketcher.Constraint("Angle", 9, Q("-20 deg")))
sketch2.addConstraint(Sketcher.Constraint("DistanceY", 5, 2, -1, 1, Q("0.43 in")))
sketch2.addConstraint(Sketcher.Constraint("DistanceY", -1, 1, 27, 2, Q("0.32 in")))
sketch2.addConstraint(Sketcher.Constraint("DistanceY", 3, 2, -1, 1, Q("0.535 in")))
sketch2.addConstraint(Sketcher.Constraint("DistanceX", -1, 1, 24, 2, Q("12.576502 mm")))
sketch2.addConstraint(Sketcher.Constraint("DistanceX", -1, 1, 33, 2, Q("6.180799 mm")))
sketch2.addConstraint(Sketcher.Constraint("DistanceX", -1, 1, 1, 2, Q("1.635551 mm")))
sketch2.addConstraint(Sketcher.Constraint("DistanceX", -1, 1, 6, 2, Q("7.474741 mm")))
sketch2.addConstraint(Sketcher.Constraint("DistanceY", 7, 2, -1, 1, Q("12.834632 mm")))
sketch2.addConstraint(Sketcher.Constraint("DistanceX", -1, 1, 9, 2, Q("9.914391 mm")))
sketch2.addConstraint(Sketcher.Constraint("DistanceX", -1, 1, 13, 2, Q("9.980551 mm")))
sketch2.addConstraint(Sketcher.Constraint("DistanceY", 13, 2, -1, 1, Q("9.349892 mm")))
sketch2.addConstraint(Sketcher.Constraint("DistanceX", -1, 1, 14, 2, Q("8.76079 mm")))
sketch2.addConstraint(Sketcher.Constraint("DistanceX", -1, 1, 15, 2, Q("13.08752 mm")))
sketch2.addConstraint(Sketcher.Constraint("DistanceY", 16, 2, -1, 1, Q("6.796191 mm")))
sketch2.addConstraint(Sketcher.Constraint("DistanceX", -1, 1, 19, 2, Q("13.11517 mm")))
sketch2.addConstraint(Sketcher.Constraint("DistanceX", -1, 1, 21, 2, Q("13.476479 mm")))
sketch2.addConstraint(Sketcher.Constraint("DistanceY", -1, 1, 21, 2, Q("2.327318 mm")))
sketch2.addConstraint(Sketcher.Constraint("DistanceX", -1, 1, 22, 2, Q("13.655541 mm")))
sketch2.addConstraint(Sketcher.Constraint("DistanceX", -1, 1, 26, 2, Q("10.463161 mm")))
sketch2.addConstraint(Sketcher.Constraint("DistanceX", -1, 1, 29, 2, Q("9.458729 mm")))
sketch2.addConstraint(Sketcher.Constraint("DistanceX", -1, 1, 30, 2, Q("8.82761 mm")))
sketch2.addConstraint(Sketcher.Constraint("DistanceY", -1, 1, 32, 2, Q("7.495131 mm")))
sketch2.addConstraint(Sketcher.Constraint("DistanceX", -1, 1, 36, 2, Q("3.200779 mm")))
sketch2.addConstraint(Sketcher.Constraint("DistanceX", -1, 1, 40, 2, Q("3.106968 mm")))
sketch2.addConstraint(Sketcher.Constraint("DistanceY", -1, 1, 41, 2, Q("10.848149 mm")))
sketch2.addConstraint(Sketcher.Constraint("DistanceY", 0, 2, -1, 1, Q("12.867606 mm")))
sketch2.addConstraint(Sketcher.Constraint("DistanceY", 9, 2, -1, 1, Q("9.420018 mm")))
sketch2.addConstraint(Sketcher.Constraint("DistanceY", 18, 2, -1, 1, Q("0.843305 mm")))
sketch2.addConstraint(Sketcher.Constraint("DistanceY", -1, 1, 24, 2, Q("5.372475 mm")))
sketch2.addConstraint(Sketcher.Constraint("DistanceY", -1, 1, 33, 2, Q("12.199574 mm")))
sketch2.addConstraint(Sketcher.Constraint("DistanceY", -1, 1, 36, 2, Q("13.296123 mm")))
pocket1 = body.newObject("PartDesign::Pocket", "Pocket")
pocket1.Profile = sketch2
pocket1.Length = Q("2 in")
pocket1.Reversed = True

# Sketch on XZ plane
sketch3 = body.newObject("Sketcher::SketchObject", "Sketch002")
sketch3.AttachmentSupport = (doc.getObject("XZ_Plane"), [""])
sketch3.MapMode = "FlatFace"
sketch3.addGeometry(Part.Circle(Vector(0, 0, 0), Vector(0, 0, 1), 2.5), False)
sketch3.addConstraint(Sketcher.Constraint("Coincident", 0, 3, -1, 1))
sketch3.addConstraint(Sketcher.Constraint("Diameter", 0, Q("0.2 in")))
pad2 = body.newObject("PartDesign::Pad", "Pad001")
pad2.Profile = sketch3
pad2.Length = Q("0.5 in")

# Sketch on XZ plane
sketch4 = body.newObject("Sketcher::SketchObject", "Sketch003")
sketch4.AttachmentSupport = (doc.getObject("XZ_Plane"), [""])
sketch4.MapMode = "FlatFace"
sketch4.AttachmentOffset = App.Placement(Vector(0, 0, -2.5 * 25.4), App.Rotation())
sketch4.addGeometry(Part.Circle(Vector(0, 0, 0), Vector(0, 0, 1), 2.5), False)
sketch4.addConstraint(Sketcher.Constraint("Coincident", 0, 3, -1, 1))
sketch4.addConstraint(Sketcher.Constraint("Diameter", 0, Q("0.2 in")))
pad3 = body.newObject("PartDesign::Pad", "Pad002")
pad3.Profile = sketch4
pad3.Length = Q("0.5 in")

doc.recompute()
